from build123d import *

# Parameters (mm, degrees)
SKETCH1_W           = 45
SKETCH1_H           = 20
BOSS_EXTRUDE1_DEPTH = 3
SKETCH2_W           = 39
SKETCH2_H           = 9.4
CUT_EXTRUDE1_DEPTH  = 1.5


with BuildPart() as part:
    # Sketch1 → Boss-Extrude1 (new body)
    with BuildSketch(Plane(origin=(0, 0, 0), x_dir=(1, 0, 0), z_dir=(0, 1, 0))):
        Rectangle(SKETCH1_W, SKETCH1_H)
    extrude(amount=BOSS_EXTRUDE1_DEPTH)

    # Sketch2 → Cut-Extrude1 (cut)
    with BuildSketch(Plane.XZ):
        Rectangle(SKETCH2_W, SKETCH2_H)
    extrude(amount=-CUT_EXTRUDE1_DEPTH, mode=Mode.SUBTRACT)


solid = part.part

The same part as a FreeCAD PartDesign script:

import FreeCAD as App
import Part
import Sketcher
Q = App.Units.Quantity


def add_polygon(sketch, points):
    """Adds a closed chain of lines whose ends are joined by coincident constraints."""
    first, n = sketch.GeometryCount, len(points)
    for a, b in zip(points, points[1:] + points[:1]):
        sketch.addGeometry(Part.LineSegment(App.Vector(*a, 0), App.Vector(*b, 0)), False)
    for i in range(n):
        sketch.addConstraint(Sketcher.Constraint("Coincident", first + i, 2, first + (i + 1) % n, 1))

doc = App.newDocument("Part")
body = doc.addObject("PartDesign::Body", "Body")

# Sketch on XZ plane
sketch1 = doc.addObject("Sketcher::SketchObject", "Sketch")
body.addObject(sketch1)
sketch1.AttachmentSupport = (doc.XZ_Plane, [""])
sketch1.MapMode = "FlatFace"
add_polygon(sketch1, [(-22.5, -10), (-22.5, 10), (22.5, 10), (22.5, -10)])  # lines 0-3
sketch1.addConstraint(Sketcher.Constraint("Vertical", 0))
sketch1.addConstraint(Sketcher.Constraint("Horizontal", 1))
sketch1.addConstraint(Sketcher.Constraint("Vertical", 2))
sketch1.addConstraint(Sketcher.Constraint("Horizontal", 3))
sketch1.addConstraint(Sketcher.Constraint("Symmetric", 0, 2, 2, 2, -1, 1))
sketch1.addConstraint(Sketcher.Constraint("DistanceX", 1, 1, 1, 2, Q("45 mm")))
sketch1.addConstraint(Sketcher.Constraint("DistanceY", 0, 1, 0, 2, Q("20 mm")))
pad1 = doc.addObject("PartDesign::Pad", "Pad")
body.addObject(pad1)
pad1.Profile = sketch1
pad1.Length = 3
pad1.Reversed = True

# Sketch on XZ plane
sketch2 = doc.addObject("Sketcher::SketchObject", "Sketch001")
body.addObject(sketch2)
sketch2.AttachmentSupport = (doc.XZ_Plane, [""])
sketch2.MapMode = "FlatFace"
add_polygon(sketch2, [(-19.5, 4.7), (-19.5, -4.7), (19.5, -4.7), (19.5, 4.7)])  # lines 0-3
sketch2.addConstraint(Sketcher.Constraint("Vertical", 0))
sketch2.addConstraint(Sketcher.Constraint("Horizontal", 1))
sketch2.addConstraint(Sketcher.Constraint("Vertical", 2))
sketch2.addConstraint(Sketcher.Constraint("Horizontal", 3))
sketch2.addConstraint(Sketcher.Constraint("Symmetric", 0, 2, 2, 2, -1, 1))
sketch2.addConstraint(Sketcher.Constraint("DistanceX", 1, 1, 1, 2, Q("39 mm")))
sketch2.addConstraint(Sketcher.Constraint("DistanceY", 0, 2, 0, 1, Q("9.4 mm")))
pocket1 = doc.addObject("PartDesign::Pocket", "Pocket")
body.addObject(pocket1)
pocket1.Profile = sketch2
pocket1.Length = 1.5

doc.recompute()
